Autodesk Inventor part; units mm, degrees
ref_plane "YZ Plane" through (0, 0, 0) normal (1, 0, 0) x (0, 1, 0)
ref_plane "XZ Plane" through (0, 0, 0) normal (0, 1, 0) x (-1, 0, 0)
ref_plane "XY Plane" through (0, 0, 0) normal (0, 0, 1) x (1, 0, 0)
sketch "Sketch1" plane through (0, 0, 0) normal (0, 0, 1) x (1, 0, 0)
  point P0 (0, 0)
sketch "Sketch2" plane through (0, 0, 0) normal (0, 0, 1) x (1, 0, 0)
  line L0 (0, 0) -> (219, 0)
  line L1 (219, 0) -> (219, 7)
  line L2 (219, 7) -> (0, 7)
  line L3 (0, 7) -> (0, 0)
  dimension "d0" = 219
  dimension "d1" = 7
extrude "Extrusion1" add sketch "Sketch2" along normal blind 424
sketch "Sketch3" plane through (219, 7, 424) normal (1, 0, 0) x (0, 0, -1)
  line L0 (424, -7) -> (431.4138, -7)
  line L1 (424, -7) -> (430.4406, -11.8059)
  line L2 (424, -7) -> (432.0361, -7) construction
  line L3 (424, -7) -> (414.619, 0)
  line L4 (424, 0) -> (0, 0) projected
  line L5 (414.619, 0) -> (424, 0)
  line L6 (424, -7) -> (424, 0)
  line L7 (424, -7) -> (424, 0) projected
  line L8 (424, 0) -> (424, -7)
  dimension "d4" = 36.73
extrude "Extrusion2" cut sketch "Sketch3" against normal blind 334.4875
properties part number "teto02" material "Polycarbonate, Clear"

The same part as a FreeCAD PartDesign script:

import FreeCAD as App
import Part
import Sketcher
Q = App.Units.Quantity

doc = App.newDocument("Part")
body = doc.addObject("PartDesign::Body", "Body")

sketch1 = body.newObject("Sketcher::SketchObject", "Sketch")
sketch1.AttachmentSupport = (doc.getObject("XY_Plane"), [""])
sketch1.MapMode = "FlatFace"
sketch1.addGeometry(Part.LineSegment(App.Vector(0, 7, 0), App.Vector(0, 0, 0)), False)
sketch1.addGeometry(Part.LineSegment(App.Vector(0, 0, 0), App.Vector(219, 0, 0)), False)
sketch1.addGeometry(Part.LineSegment(App.Vector(219, 0, 0), App.Vector(219, 7, 0)), False)
sketch1.addGeometry(Part.LineSegment(App.Vector(219, 7, 0), App.Vector(0, 7, 0)), False)
sketch1.addConstraint(Sketcher.Constraint("Coincident", 0, 2, 1, 1))
sketch1.addConstraint(Sketcher.Constraint("Coincident", 1, 2, 2, 1))
sketch1.addConstraint(Sketcher.Constraint("Coincident", 2, 2, 3, 1))
sketch1.addConstraint(Sketcher.Constraint("Coincident", 3, 2, 0, 1))
sketch1.addConstraint(Sketcher.Constraint("Vertical", 0))
sketch1.addConstraint(Sketcher.Constraint("Horizontal", 1))
sketch1.addConstraint(Sketcher.Constraint("Vertical", 2))
sketch1.addConstraint(Sketcher.Constraint("Horizontal", 3))
sketch1.addConstraint(Sketcher.Constraint("Coincident", 0, 2, -1, 1))
sketch1.addConstraint(Sketcher.Constraint("DistanceX", 1, 1, 1, 2, 219.0))
sketch1.addConstraint(Sketcher.Constraint("DistanceY", 0, 2, 0, 1, 7.0))
pad1 = body.newObject("PartDesign::Pad", "Pad")
pad1.Profile = sketch1
pad1.Length = 424

sketch2 = body.newObject("Sketcher::SketchObject", "Sketch001")
sketch2.AttachmentSupport = (doc.getObject("YZ_Plane"), [""])
sketch2.MapMode = "FlatFace"
sketch2.AttachmentOffset = App.Placement(App.Vector(0, 0, 219), App.Rotation())
sketch2.addGeometry(Part.LineSegment(App.Vector(7, 9.381, 0), App.Vector(0, 0, 0)), False)
sketch2.addGeometry(Part.LineSegment(App.Vector(0, 0, 0), App.Vector(7, 0, 0)), False)
sketch2.addGeometry(Part.LineSegment(App.Vector(7, 0, 0), App.Vector(7, 9.381, 0)), False)
sketch2.addConstraint(Sketcher.Constraint("Coincident", 0, 2, 1, 1))
sketch2.addConstraint(Sketcher.Constraint("Coincident", 1, 2, 2, 1))
sketch2.addConstraint(Sketcher.Constraint("Coincident", 2, 2, 0, 1))
sketch2.addConstraint(Sketcher.Constraint("Horizontal", 1))
sketch2.addConstraint(Sketcher.Constraint("Vertical", 2))
sketch2.addConstraint(Sketcher.Constraint("Coincident", 0, 2, -1, 1))
sketch2.addConstraint(Sketcher.Constraint("DistanceX", 1, 1, 1, 2, 7.0))
sketch2.addConstraint(Sketcher.Constraint("Angle", 0, Q("-126.73 deg")))
pocket1 = body.newObject("PartDesign::Pocket", "Pocket")
pocket1.Profile = sketch2
pocket1.Length = 334.4875

doc.recompute()
